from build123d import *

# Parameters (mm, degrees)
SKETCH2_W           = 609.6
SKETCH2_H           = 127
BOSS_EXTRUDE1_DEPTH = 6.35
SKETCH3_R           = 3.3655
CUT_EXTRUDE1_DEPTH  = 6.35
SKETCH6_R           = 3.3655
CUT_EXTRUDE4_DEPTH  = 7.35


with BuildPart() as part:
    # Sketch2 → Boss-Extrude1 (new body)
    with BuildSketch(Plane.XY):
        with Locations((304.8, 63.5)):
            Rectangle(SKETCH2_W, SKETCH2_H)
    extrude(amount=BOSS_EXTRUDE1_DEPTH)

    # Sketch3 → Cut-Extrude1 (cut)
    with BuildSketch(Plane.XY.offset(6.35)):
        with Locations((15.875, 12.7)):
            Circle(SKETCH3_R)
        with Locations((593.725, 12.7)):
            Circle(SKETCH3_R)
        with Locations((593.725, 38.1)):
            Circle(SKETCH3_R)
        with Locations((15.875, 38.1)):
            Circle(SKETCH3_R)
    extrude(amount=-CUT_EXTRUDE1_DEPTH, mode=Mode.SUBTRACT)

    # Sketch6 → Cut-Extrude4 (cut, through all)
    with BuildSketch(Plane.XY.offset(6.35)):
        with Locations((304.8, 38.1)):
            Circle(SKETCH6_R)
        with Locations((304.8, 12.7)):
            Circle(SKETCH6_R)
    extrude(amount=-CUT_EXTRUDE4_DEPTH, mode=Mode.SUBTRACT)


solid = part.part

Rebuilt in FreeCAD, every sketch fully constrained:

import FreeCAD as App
import Part
import Sketcher

V = App.Vector
Q = App.Units.Quantity


def add_polygon(sketch, points):
    """Adds a closed chain of lines whose ends are joined by coincident constraints."""
    first, n = sketch.GeometryCount, len(points)
    for a, b in zip(points, points[1:] + points[:1]):
        sketch.addGeometry(Part.LineSegment(App.Vector(*a, 0), App.Vector(*b, 0)), False)
    for i in range(n):
        sketch.addConstraint(Sketcher.Constraint("Coincident", first + i, 2, first + (i + 1) % n, 1))

doc = App.newDocument("Part")
body = doc.addObject("PartDesign::Body", "Body")

# Sketch on XY plane
sketch1 = doc.addObject("Sketcher::SketchObject", "Sketch")
body.addObject(sketch1)
sketch1.AttachmentSupport = (doc.XY_Plane, [""])
sketch1.MapMode = "FlatFace"
add_polygon(sketch1, [(0, 127), (0, 0), (610, 0), (610, 127)])  # lines 0-3
sketch1.addConstraint(Sketcher.Constraint("Vertical", 0))
sketch1.addConstraint(Sketcher.Constraint("Horizontal", 1))
sketch1.addConstraint(Sketcher.Constraint("Vertical", 2))
sketch1.addConstraint(Sketcher.Constraint("Horizontal", 3))
sketch1.addConstraint(Sketcher.Constraint("Coincident", 0, 2, -1, 1))
sketch1.addConstraint(Sketcher.Constraint("DistanceX", 1, 1, 1, 2, Q("24 in")))
sketch1.addConstraint(Sketcher.Constraint("DistanceY", 0, 2, 0, 1, Q("5 in")))
pad1 = doc.addObject("PartDesign::Pad", "Pad")
body.addObject(pad1)
pad1.Profile = sketch1
pad1.Length = Q("0.25 in")

# Sketch on XY plane
sketch2 = doc.addObject("Sketcher::SketchObject", "Sketch001")
body.addObject(sketch2)
sketch2.AttachmentSupport = (doc.XY_Plane, [""])
sketch2.MapMode = "FlatFace"
sketch2.AttachmentOffset = App.Placement(V(0, 0, 0.25 * 25.4), App.Rotation())
sketch2.addGeometry(Part.Circle(V(15.9, 12.7, 0), V(0, 0, 1), 3.4), False)
sketch2.addGeometry(Part.Circle(V(593.7, 12.7, 0), V(0, 0, 1), 3.4), False)
sketch2.addGeometry(Part.Circle(V(593.7, 38.1, 0), V(0, 0, 1), 3.4), False)
sketch2.addGeometry(Part.Circle(V(15.9, 38.1, 0), V(0, 0, 1), 3.4), False)
sketch2.addConstraint(Sketcher.Constraint("Equal", 0, 1))
sketch2.addConstraint(Sketcher.Constraint("Equal", 1, 2))
sketch2.addConstraint(Sketcher.Constraint("Equal", 2, 3))
sketch2.addConstraint(Sketcher.Constraint("Horizontal", 0, 3, 1, 3))
sketch2.addConstraint(Sketcher.Constraint("Horizontal", 2, 3, 3, 3))
sketch2.addConstraint(Sketcher.Constraint("Vertical", 1, 3, 2, 3))
sketch2.addConstraint(Sketcher.Constraint("Vertical", 0, 3, 3, 3))
sketch2.addConstraint(Sketcher.Constraint("Diameter", 0, Q("0.265 in")))
sketch2.addConstraint(Sketcher.Constraint("DistanceY", 1, 3, 2, 3, Q("1 in")))
sketch2.addConstraint(Sketcher.Constraint("DistanceY", -1, 1, 0, 3, Q("0.5 in")))
sketch2.addConstraint(Sketcher.Constraint("DistanceX", 0, 3, 1, 3, Q("22.75 in")))
sketch2.addConstraint(Sketcher.Constraint("DistanceX", -1, 1, 0, 3, Q("0.625 in")))
pocket1 = doc.addObject("PartDesign::Pocket", "Pocket")
body.addObject(pocket1)
pocket1.Profile = sketch2
pocket1.Length = Q("0.25 in")

# Sketch on XY plane
sketch3 = doc.addObject("Sketcher::SketchObject", "Sketch002")
body.addObject(sketch3)
sketch3.AttachmentSupport = (doc.XY_Plane, [""])
sketch3.MapMode = "FlatFace"
sketch3.AttachmentOffset = App.Placement(V(0, 0, 0.25 * 25.4), App.Rotation())
sketch3.addGeometry(Part.Circle(V(304.8, 38.1, 0), V(0, 0, 1), 3.4), False)
sketch3.addGeometry(Part.Circle(V(304.8, 12.7, 0), V(0, 0, 1), 3.4), False)
sketch3.addConstraint(Sketcher.Constraint("Equal", 0, 1))
sketch3.addConstraint(Sketcher.Constraint("Vertical", 0, 3, 1, 3))
sketch3.addConstraint(Sketcher.Constraint("Diameter", 0, Q("0.265 in")))
sketch3.addConstraint(Sketcher.Constraint("DistanceX", -1, 1, 0, 3, Q("12 in")))
sketch3.addConstraint(Sketcher.Constraint("DistanceY", 1, 3, 0, 3, Q("1 in")))
sketch3.addConstraint(Sketcher.Constraint("DistanceY", -1, 1, 0, 3, Q("1.5 in")))
pocket2 = doc.addObject("PartDesign::Pocket", "Pocket001")
body.addObject(pocket2)
pocket2.Profile = sketch3
pocket2.Type = "ThroughAll"

doc.recompute()
